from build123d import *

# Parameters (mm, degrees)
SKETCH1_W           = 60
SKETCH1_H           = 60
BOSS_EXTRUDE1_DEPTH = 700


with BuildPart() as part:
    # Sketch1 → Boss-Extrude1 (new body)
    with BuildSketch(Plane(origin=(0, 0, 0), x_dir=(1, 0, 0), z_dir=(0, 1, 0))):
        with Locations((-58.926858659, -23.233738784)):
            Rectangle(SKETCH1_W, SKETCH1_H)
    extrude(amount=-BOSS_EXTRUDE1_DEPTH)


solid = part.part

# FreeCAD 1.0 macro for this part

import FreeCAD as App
import Part
import Sketcher
from FreeCAD import Vector


def add_polygon(sketch, points):
    """Adds a closed chain of lines whose ends are joined by coincident constraints."""
    first, n = sketch.GeometryCount, len(points)
    for a, b in zip(points, points[1:] + points[:1]):
        sketch.addGeometry(Part.LineSegment(App.Vector(*a, 0), App.Vector(*b, 0)), False)
    for i in range(n):
        sketch.addConstraint(Sketcher.Constraint("Coincident", first + i, 2, first + (i + 1) % n, 1))

doc = App.newDocument("Part")
body = doc.addObject("PartDesign::Body", "Body")

# Sketch on XZ plane
sketch1 = body.newObject("Sketcher::SketchObject", "Sketch")
sketch1.AttachmentSupport = (doc.getObject("XZ_Plane"), [""])
sketch1.MapMode = "FlatFace"
add_polygon(sketch1, [(-89, -7), (-89, 53), (-29, 53), (-29, -7)])  # lines 0-3
sketch1.addConstraint(Sketcher.Constraint("Vertical", 0))
sketch1.addConstraint(Sketcher.Constraint("Horizontal", 1))
sketch1.addConstraint(Sketcher.Constraint("Vertical", 2))
sketch1.addConstraint(Sketcher.Constraint("Horizontal", 3))
sketch1.addConstraint(Sketcher.Constraint("Equal", 3, 0))
sketch1.addConstraint(Sketcher.Constraint("DistanceX", 1, 1, 1, 2, 60.0))
sketch1.addConstraint(Sketcher.Constraint("DistanceX", 0, 2, -1, 1, 88.926859))
sketch1.addConstraint(Sketcher.Constraint("DistanceY", -1, 1, 0, 2, 53.233739))
pad1 = body.newObject("PartDesign::Pad", "Pad")
pad1.Profile = sketch1
pad1.Length = 700

doc.recompute()
